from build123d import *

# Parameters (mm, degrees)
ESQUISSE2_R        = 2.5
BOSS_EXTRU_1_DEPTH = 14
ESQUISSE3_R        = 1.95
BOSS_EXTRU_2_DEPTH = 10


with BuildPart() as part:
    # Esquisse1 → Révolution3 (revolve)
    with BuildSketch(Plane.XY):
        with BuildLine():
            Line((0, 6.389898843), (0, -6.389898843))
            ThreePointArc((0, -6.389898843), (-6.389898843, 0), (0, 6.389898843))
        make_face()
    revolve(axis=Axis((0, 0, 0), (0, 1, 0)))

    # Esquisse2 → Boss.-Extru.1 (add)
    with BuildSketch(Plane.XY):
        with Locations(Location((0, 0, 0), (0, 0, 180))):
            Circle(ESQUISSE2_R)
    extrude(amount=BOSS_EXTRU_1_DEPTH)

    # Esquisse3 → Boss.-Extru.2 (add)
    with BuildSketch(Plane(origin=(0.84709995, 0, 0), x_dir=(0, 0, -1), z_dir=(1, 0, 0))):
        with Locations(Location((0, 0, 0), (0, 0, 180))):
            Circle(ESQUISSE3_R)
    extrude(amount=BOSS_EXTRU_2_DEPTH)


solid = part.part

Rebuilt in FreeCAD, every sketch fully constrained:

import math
import FreeCAD as App
import Part
import Sketcher

V = App.Vector

doc = App.newDocument("Part")
params = doc.addObject("Spreadsheet::Sheet", "Params")
for row, (alias, value) in enumerate([
    ("revolution_angle", "360 deg"),
    ("sketch2_diameter", "5 mm"),
    ("pad1_length", "14 mm"),
    ("sketch3_diameter", "3.9 mm"),
    ("pad2_length", "10 mm"),
], start=1):
    params.set(f"A{row}", alias)
    params.set(f"B{row}", "=" + value)
    params.setAlias(f"B{row}", alias)

body = doc.addObject("PartDesign::Body", "Body")

sketch1 = body.newObject("Sketcher::SketchObject", "Sketch")
sketch1.AttachmentSupport = (doc.getObject("XY_Plane"), [""])
sketch1.MapMode = "FlatFace"
sketch1.addGeometry(Part.LineSegment(V(0, -6.389899, 0), V(0, 6.389899, 0)), False)
sketch1.addGeometry(Part.ArcOfCircle(Part.Circle(V(0, 0, 0), V(0, 0, 1), 6.389899), math.radians(90), math.radians(270)), False)
sketch1.addConstraint(Sketcher.Constraint("Coincident", 0, 1, 1, 2))
sketch1.addConstraint(Sketcher.Constraint("Coincident", 1, 1, 0, 2))
sketch1.addConstraint(Sketcher.Constraint("Vertical", 0))
sketch1.addConstraint(Sketcher.Constraint("Coincident", 1, 3, -1, 1))
sketch1.addConstraint(Sketcher.Constraint("PointOnObject", 0, 1, -2))
sketch1.addConstraint(Sketcher.Constraint("Radius", 1, 6.389899))
revolution = body.newObject("PartDesign::Revolution", "Revolution")
revolution.Profile = sketch1
revolution.ReferenceAxis = (sketch1, ["V_Axis"])
revolution.setExpression("Angle", "Params.revolution_angle")

sketch2 = body.newObject("Sketcher::SketchObject", "Sketch001")
sketch2.AttachmentSupport = (doc.getObject("XY_Plane"), [""])
sketch2.MapMode = "FlatFace"
sketch2.addGeometry(Part.Circle(V(0, 0, 0), V(0, 0, 1), 2.5), False)
sketch2.addConstraint(Sketcher.Constraint("Coincident", 0, 3, -1, 1))
sketch2.addConstraint(Sketcher.Constraint("Diameter", 0, 5.0))
sketch2.setExpression("Constraints[1]", "Params.sketch2_diameter")
pad1 = body.newObject("PartDesign::Pad", "Pad")
pad1.Profile = sketch2
pad1.setExpression("Length", "Params.pad1_length")

sketch3 = body.newObject("Sketcher::SketchObject", "Sketch002")
sketch3.AttachmentSupport = (doc.getObject("YZ_Plane"), [""])
sketch3.MapMode = "FlatFace"
sketch3.AttachmentOffset = App.Placement(V(0, 0, 0.8471), App.Rotation())
sketch3.addGeometry(Part.Circle(V(0, 0, 0), V(0, 0, 1), 1.95), False)
sketch3.addConstraint(Sketcher.Constraint("Coincident", 0, 3, -1, 1))
sketch3.addConstraint(Sketcher.Constraint("Diameter", 0, 3.9))
sketch3.setExpression("Constraints[1]", "Params.sketch3_diameter")
pad2 = body.newObject("PartDesign::Pad", "Pad001")
pad2.Profile = sketch3
pad2.setExpression("Length", "Params.pad2_length")

doc.recompute()
